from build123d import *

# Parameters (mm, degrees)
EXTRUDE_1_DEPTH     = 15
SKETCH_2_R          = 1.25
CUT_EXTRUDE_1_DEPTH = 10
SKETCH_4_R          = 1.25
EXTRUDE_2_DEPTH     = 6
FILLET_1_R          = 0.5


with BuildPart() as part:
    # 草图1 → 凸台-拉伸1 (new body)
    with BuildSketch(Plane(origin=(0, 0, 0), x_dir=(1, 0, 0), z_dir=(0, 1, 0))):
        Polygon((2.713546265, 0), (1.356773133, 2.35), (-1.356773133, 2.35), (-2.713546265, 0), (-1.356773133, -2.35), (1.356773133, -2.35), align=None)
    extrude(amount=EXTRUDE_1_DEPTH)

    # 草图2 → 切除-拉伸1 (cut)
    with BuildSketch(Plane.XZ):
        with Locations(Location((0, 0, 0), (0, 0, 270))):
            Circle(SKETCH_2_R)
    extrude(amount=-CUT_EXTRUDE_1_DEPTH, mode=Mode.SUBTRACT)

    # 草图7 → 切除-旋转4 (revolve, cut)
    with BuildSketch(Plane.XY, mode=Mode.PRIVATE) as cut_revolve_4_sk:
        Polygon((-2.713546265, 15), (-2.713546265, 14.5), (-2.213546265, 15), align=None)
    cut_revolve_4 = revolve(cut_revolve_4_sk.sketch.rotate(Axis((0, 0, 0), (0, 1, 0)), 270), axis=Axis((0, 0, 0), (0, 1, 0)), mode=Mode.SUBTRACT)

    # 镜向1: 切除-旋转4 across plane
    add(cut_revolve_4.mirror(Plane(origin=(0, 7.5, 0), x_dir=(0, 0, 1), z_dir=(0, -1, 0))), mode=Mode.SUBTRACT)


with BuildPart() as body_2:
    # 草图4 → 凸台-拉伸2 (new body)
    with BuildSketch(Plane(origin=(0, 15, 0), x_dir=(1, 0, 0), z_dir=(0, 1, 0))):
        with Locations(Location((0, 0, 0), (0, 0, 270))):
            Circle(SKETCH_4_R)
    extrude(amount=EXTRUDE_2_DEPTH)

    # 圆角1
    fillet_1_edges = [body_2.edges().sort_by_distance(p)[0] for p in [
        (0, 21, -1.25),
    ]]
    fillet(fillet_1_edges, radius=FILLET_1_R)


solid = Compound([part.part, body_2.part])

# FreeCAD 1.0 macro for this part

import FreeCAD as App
import Part
import Sketcher
from FreeCAD import Vector
Q = App.Units.Quantity


def edges_at(feature, points):
    """Names of the edges that pass closest to the given points."""
    edges = feature.Shape.Edges
    near = lambda p: min(range(len(edges)), key=lambda i: edges[i].distToShape(Part.Vertex(*p))[0])
    return sorted({f"Edge{near(p) + 1}" for p in points})


def add_polygon(sketch, points):
    """Adds a closed chain of lines whose ends are joined by coincident constraints."""
    first, n = sketch.GeometryCount, len(points)
    for a, b in zip(points, points[1:] + points[:1]):
        sketch.addGeometry(Part.LineSegment(App.Vector(*a, 0), App.Vector(*b, 0)), False)
    for i in range(n):
        sketch.addConstraint(Sketcher.Constraint("Coincident", first + i, 2, first + (i + 1) % n, 1))

doc = App.newDocument("Part")
body = doc.addObject("PartDesign::Body", "Body")

sketch1 = body.newObject("Sketcher::SketchObject", "Sketch")
sketch1.AttachmentSupport = (doc.getObject("XZ_Plane"), [""])
sketch1.MapMode = "FlatFace"
add_polygon(sketch1, [(2.713546, 0), (1.356773, -2.35), (-1.356773, -2.35), (-2.713546, 0), (-1.356773, 2.35), (1.356773, 2.35)])
sketch1.addConstraint(Sketcher.Constraint("Horizontal", 1))
sketch1.addConstraint(Sketcher.Constraint("Horizontal", 4))
sketch1.addConstraint(Sketcher.Constraint("Symmetric", 0, 2, 3, 2, -1, 1))
sketch1.addConstraint(Sketcher.Constraint("Symmetric", 2, 2, 5, 2, -1, 1))
sketch1.addConstraint(Sketcher.Constraint("PointOnObject", 2, 2, -1))
sketch1.addConstraint(Sketcher.Constraint("Parallel", 2, 5))
sketch1.addConstraint(Sketcher.Constraint("Vertical", 1, 2, 3, 2))
sketch1.addConstraint(Sketcher.Constraint("Angle", 0, Q("-120 deg")))
sketch1.addConstraint(Sketcher.Constraint("DistanceY", 1, 2, 3, 2, Q("4.7 mm")))
sketch1.addConstraint(Sketcher.Constraint("DistanceX", 1, 2, 1, 1, Q("2.713546 mm")))
pad1 = body.newObject("PartDesign::Pad", "Pad")
pad1.Profile = sketch1
pad1.Length = 15
pad1.Reversed = True

sketch2 = body.newObject("Sketcher::SketchObject", "Sketch001")
sketch2.AttachmentSupport = (doc.getObject("XZ_Plane"), [""])
sketch2.MapMode = "FlatFace"
sketch2.addGeometry(Part.Circle(Vector(0, 0, 0), Vector(0, 0, 1), 1.25), False)
sketch2.addConstraint(Sketcher.Constraint("Coincident", 0, 3, -1, 1))
sketch2.addConstraint(Sketcher.Constraint("Diameter", 0, Q("2.5 mm")))
pocket1 = body.newObject("PartDesign::Pocket", "Pocket")
pocket1.Profile = sketch2
pocket1.Length = 10

sketch3 = body.newObject("Sketcher::SketchObject", "Sketch002")
sketch3.AttachmentSupport = (doc.getObject("XY_Plane"), [""])
sketch3.MapMode = "FlatFace"
add_polygon(sketch3, [(-2.713546, 15), (-2.713546, 14.5), (-2.213546, 15)])
sketch3.addConstraint(Sketcher.Constraint("Vertical", 0))
sketch3.addConstraint(Sketcher.Constraint("Horizontal", 2))
sketch3.addConstraint(Sketcher.Constraint("Equal", 2, 0))
sketch3.addConstraint(Sketcher.Constraint("DistanceX", 2, 2, 2, 1, Q("0.5 mm")))
sketch3.addConstraint(Sketcher.Constraint("DistanceY", -1, 1, 1, 2, Q("15 mm")))
sketch3.addConstraint(Sketcher.Constraint("DistanceX", 0, 2, -1, 1, Q("2.713546 mm")))
groove = body.newObject("PartDesign::Groove", "Groove")
groove.Profile = sketch3
groove.ReferenceAxis = (sketch3, ["V_Axis"])
groove.Angle = 360
doc.recompute()

datumplane = body.newObject("PartDesign::Plane", "DatumPlane")
datumplane.AttachmentSupport = (doc.getObject("XZ_Plane"), [""])
datumplane.MapMode = "FlatFace"
datumplane.AttachmentOffset = App.Placement(Vector(0, 0, -7.5), App.Rotation())
mirrored = body.newObject("PartDesign::Mirrored", "Mirrored")
mirrored.Originals = [groove]
mirrored.MirrorPlane = (datumplane, [""])
body.Tip = mirrored
body2 = doc.addObject("PartDesign::Body", "Body001")

sketch4 = body2.newObject("Sketcher::SketchObject", "Sketch003")
sketch4.AttachmentSupport = (doc.getObject("XZ_Plane001"), [""])
sketch4.MapMode = "FlatFace"
sketch4.AttachmentOffset = App.Placement(Vector(0, 0, -15), App.Rotation())
sketch4.addGeometry(Part.Circle(Vector(0, 0, 0), Vector(0, 0, 1), 1.25), False)
sketch4.addConstraint(Sketcher.Constraint("Coincident", 0, 3, -1, 1))
sketch4.addConstraint(Sketcher.Constraint("Diameter", 0, Q("2.5 mm")))
pad2 = body2.newObject("PartDesign::Pad", "Pad001")
pad2.Profile = sketch4
pad2.Length = 6
pad2.Reversed = True
doc.recompute()

fillet = body2.newObject("PartDesign::Fillet", "Fillet")
fillet.Base = (pad2, edges_at(pad2, [(0, 21, -1.25)]))
fillet.Radius = 0.5

doc.recompute()
